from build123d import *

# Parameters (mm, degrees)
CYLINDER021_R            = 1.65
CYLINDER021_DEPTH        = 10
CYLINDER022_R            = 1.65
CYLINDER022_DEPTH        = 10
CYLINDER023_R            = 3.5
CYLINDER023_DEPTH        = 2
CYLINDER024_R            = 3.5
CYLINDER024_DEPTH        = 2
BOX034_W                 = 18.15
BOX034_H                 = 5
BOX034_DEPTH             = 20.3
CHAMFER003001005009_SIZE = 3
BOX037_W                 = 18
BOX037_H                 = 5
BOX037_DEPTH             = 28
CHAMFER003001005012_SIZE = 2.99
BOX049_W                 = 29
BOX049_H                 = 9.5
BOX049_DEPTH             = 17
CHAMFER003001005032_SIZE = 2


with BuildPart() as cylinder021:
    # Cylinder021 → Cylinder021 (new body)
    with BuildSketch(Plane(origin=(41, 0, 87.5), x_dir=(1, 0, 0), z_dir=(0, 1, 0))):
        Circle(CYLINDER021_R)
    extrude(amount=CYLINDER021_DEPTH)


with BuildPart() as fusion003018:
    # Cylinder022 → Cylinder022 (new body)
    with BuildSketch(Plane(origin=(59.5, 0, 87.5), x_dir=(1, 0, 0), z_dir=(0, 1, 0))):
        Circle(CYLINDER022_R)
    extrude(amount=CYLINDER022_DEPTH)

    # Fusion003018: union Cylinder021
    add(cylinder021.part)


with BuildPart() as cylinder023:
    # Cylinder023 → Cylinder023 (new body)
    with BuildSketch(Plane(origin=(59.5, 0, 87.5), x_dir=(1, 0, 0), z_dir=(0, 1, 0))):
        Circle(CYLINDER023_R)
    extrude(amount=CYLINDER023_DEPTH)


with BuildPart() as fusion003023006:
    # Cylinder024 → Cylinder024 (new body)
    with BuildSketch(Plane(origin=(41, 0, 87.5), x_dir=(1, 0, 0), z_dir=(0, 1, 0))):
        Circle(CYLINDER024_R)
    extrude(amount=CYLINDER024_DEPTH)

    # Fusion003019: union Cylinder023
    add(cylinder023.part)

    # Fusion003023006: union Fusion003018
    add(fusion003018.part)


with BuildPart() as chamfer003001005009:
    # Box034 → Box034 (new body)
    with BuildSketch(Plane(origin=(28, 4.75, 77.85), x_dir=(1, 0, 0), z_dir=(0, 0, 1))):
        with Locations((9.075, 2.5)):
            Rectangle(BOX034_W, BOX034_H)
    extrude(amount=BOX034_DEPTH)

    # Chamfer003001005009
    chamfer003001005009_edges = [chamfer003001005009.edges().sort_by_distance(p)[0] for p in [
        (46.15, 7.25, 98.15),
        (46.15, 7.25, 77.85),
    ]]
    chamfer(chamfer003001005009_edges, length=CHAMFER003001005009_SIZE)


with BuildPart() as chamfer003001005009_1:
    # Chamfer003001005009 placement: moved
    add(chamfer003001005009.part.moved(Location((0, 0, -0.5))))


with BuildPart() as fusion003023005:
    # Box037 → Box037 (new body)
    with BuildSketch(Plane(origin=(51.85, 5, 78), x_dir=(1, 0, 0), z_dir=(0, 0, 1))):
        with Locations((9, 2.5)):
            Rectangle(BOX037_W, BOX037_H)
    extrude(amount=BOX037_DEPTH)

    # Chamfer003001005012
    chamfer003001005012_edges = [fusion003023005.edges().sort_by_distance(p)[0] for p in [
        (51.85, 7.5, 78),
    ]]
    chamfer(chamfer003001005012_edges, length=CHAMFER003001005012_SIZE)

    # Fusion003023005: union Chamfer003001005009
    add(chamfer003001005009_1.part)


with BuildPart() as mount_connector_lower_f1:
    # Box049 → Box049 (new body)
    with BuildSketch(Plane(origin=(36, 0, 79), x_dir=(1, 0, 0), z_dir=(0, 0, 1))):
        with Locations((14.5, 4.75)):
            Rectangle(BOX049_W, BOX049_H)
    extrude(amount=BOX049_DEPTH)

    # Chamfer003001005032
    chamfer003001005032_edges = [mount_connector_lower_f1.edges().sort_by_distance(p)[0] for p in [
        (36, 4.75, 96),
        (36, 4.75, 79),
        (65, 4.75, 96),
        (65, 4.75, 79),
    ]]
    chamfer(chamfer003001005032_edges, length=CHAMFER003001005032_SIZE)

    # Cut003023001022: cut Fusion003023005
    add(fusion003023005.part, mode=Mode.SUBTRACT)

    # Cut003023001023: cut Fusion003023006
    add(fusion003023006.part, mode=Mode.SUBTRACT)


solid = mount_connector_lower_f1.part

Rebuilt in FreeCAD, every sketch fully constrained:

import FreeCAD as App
import Part
import Sketcher
from FreeCAD import Vector
Q = App.Units.Quantity


def edges_at(feature, points):
    """Names of the edges that pass closest to the given points."""
    edges = feature.Shape.Edges
    near = lambda p: min(range(len(edges)), key=lambda i: edges[i].distToShape(Part.Vertex(*p))[0])
    return sorted({f"Edge{near(p) + 1}" for p in points})


def add_polygon(sketch, points):
    """Adds a closed chain of lines whose ends are joined by coincident constraints."""
    first, n = sketch.GeometryCount, len(points)
    for a, b in zip(points, points[1:] + points[:1]):
        sketch.addGeometry(Part.LineSegment(App.Vector(*a, 0), App.Vector(*b, 0)), False)
    for i in range(n):
        sketch.addConstraint(Sketcher.Constraint("Coincident", first + i, 2, first + (i + 1) % n, 1))

doc = App.newDocument("Part")
params = doc.addObject("Spreadsheet::Sheet", "Params")
for row, (alias, value) in enumerate([
    ("sketch1_diameter", "3.3 mm"),
    ("pad1_length", "10 mm"),
    ("sketch2_diameter", "3.3 mm"),
    ("pad2_length", "10 mm"),
    ("sketch3_diameter", "7 mm"),
    ("pad3_length", "2 mm"),
    ("sketch4_diameter", "7 mm"),
    ("pad4_length", "2 mm"),
    ("sketch5_height", "5 mm"),
    ("sketch5_width", "18.15 mm"),
    ("pad5_length", "20.3 mm"),
    ("chamfer_size", "3 mm"),
    ("sketch6_width", "18 mm"),
    ("sketch6_height", "5 mm"),
    ("pad6_length", "28 mm"),
    ("chamfer2_size", "2.99 mm"),
    ("sketch7_width", "29 mm"),
    ("sketch7_height", "9.5 mm"),
    ("pad7_length", "17 mm"),
    ("chamfer3_size", "2 mm"),
], start=1):
    params.set(f"A{row}", alias)
    params.set(f"B{row}", "=" + value)
    params.setAlias(f"B{row}", alias)

body = doc.addObject("PartDesign::Body", "Body")

# Sketch on XZ plane
sketch1 = body.newObject("Sketcher::SketchObject", "Sketch")
sketch1.AttachmentSupport = (doc.getObject("XZ_Plane"), [""])
sketch1.MapMode = "FlatFace"
sketch1.addGeometry(Part.Circle(Vector(41, 87.5, 0), Vector(0, 0, 1), 1.65), False)
sketch1.addConstraint(Sketcher.Constraint("Diameter", 0, Q("3.3 mm")))
sketch1.addConstraint(Sketcher.Constraint("DistanceX", -1, 1, 0, 3, Q("41 mm")))
sketch1.addConstraint(Sketcher.Constraint("DistanceY", -1, 1, 0, 3, Q("87.5 mm")))
sketch1.setExpression("Constraints[0]", "Params.sketch1_diameter")
pad1 = body.newObject("PartDesign::Pad", "Pad")
pad1.Profile = sketch1
pad1.setExpression("Length", "Params.pad1_length")
pad1.Reversed = True
body2 = doc.addObject("PartDesign::Body", "Body001")
body2.AllowCompound = True

# Sketch on XZ plane
sketch2 = body2.newObject("Sketcher::SketchObject", "Sketch001")
sketch2.AttachmentSupport = (doc.getObject("XZ_Plane001"), [""])
sketch2.MapMode = "FlatFace"
sketch2.addGeometry(Part.Circle(Vector(59.5, 87.5, 0), Vector(0, 0, 1), 1.65), False)
sketch2.addConstraint(Sketcher.Constraint("Diameter", 0, Q("3.3 mm")))
sketch2.addConstraint(Sketcher.Constraint("DistanceX", -1, 1, 0, 3, Q("59.5 mm")))
sketch2.addConstraint(Sketcher.Constraint("DistanceY", -1, 1, 0, 3, Q("87.5 mm")))
sketch2.setExpression("Constraints[0]", "Params.sketch2_diameter")
pad2 = body2.newObject("PartDesign::Pad", "Pad001")
pad2.Profile = sketch2
pad2.setExpression("Length", "Params.pad2_length")
pad2.Reversed = True
doc.recompute()

boolean = body2.newObject("PartDesign::Boolean", "Boolean")
boolean.Type = "Fuse"
boolean.addObjects([body])
body3 = doc.addObject("PartDesign::Body", "Body002")

# Sketch on XZ plane
sketch3 = body3.newObject("Sketcher::SketchObject", "Sketch002")
sketch3.AttachmentSupport = (doc.getObject("XZ_Plane002"), [""])
sketch3.MapMode = "FlatFace"
sketch3.addGeometry(Part.Circle(Vector(59.5, 87.5, 0), Vector(0, 0, 1), 3.5), False)
sketch3.addConstraint(Sketcher.Constraint("Diameter", 0, Q("7 mm")))
sketch3.addConstraint(Sketcher.Constraint("DistanceX", -1, 1, 0, 3, Q("59.5 mm")))
sketch3.addConstraint(Sketcher.Constraint("DistanceY", -1, 1, 0, 3, Q("87.5 mm")))
sketch3.setExpression("Constraints[0]", "Params.sketch3_diameter")
pad3 = body3.newObject("PartDesign::Pad", "Pad002")
pad3.Profile = sketch3
pad3.setExpression("Length", "Params.pad3_length")
pad3.Reversed = True
body4 = doc.addObject("PartDesign::Body", "Body003")
body4.AllowCompound = True

# Sketch on XZ plane
sketch4 = body4.newObject("Sketcher::SketchObject", "Sketch003")
sketch4.AttachmentSupport = (doc.getObject("XZ_Plane003"), [""])
sketch4.MapMode = "FlatFace"
sketch4.addGeometry(Part.Circle(Vector(41, 87.5, 0), Vector(0, 0, 1), 3.5), False)
sketch4.addConstraint(Sketcher.Constraint("Diameter", 0, Q("7 mm")))
sketch4.addConstraint(Sketcher.Constraint("DistanceX", -1, 1, 0, 3, Q("41 mm")))
sketch4.addConstraint(Sketcher.Constraint("DistanceY", -1, 1, 0, 3, Q("87.5 mm")))
sketch4.setExpression("Constraints[0]", "Params.sketch4_diameter")
pad4 = body4.newObject("PartDesign::Pad", "Pad003")
pad4.Profile = sketch4
pad4.setExpression("Length", "Params.pad4_length")
pad4.Reversed = True
doc.recompute()

boolean2 = body4.newObject("PartDesign::Boolean", "Boolean001")
boolean2.Type = "Fuse"
boolean2.addObjects([body3])
doc.recompute()

boolean3 = body4.newObject("PartDesign::Boolean", "Boolean002")
boolean3.Type = "Fuse"
boolean3.addObjects([body2])
body5 = doc.addObject("PartDesign::Body", "Body004")

# Sketch on XY plane
sketch5 = body5.newObject("Sketcher::SketchObject", "Sketch004")
sketch5.AttachmentSupport = (doc.getObject("XY_Plane004"), [""])
sketch5.MapMode = "FlatFace"
sketch5.AttachmentOffset = App.Placement(Vector(0, 0, 77.85), App.Rotation())
add_polygon(sketch5, [(28, 9.75), (28, 4.75), (46.15, 4.75), (46.15, 9.75)])  # lines 0-3
sketch5.addConstraint(Sketcher.Constraint("Vertical", 0))
sketch5.addConstraint(Sketcher.Constraint("Horizontal", 1))
sketch5.addConstraint(Sketcher.Constraint("Vertical", 2))
sketch5.addConstraint(Sketcher.Constraint("Horizontal", 3))
sketch5.addConstraint(Sketcher.Constraint("DistanceY", 0, 2, 0, 1, Q("5 mm")))
sketch5.addConstraint(Sketcher.Constraint("DistanceX", -1, 1, 0, 2, Q("28 mm")))
sketch5.addConstraint(Sketcher.Constraint("DistanceX", 1, 1, 1, 2, Q("18.15 mm")))
sketch5.addConstraint(Sketcher.Constraint("DistanceY", -1, 1, 0, 2, Q("4.75 mm")))
sketch5.setExpression("Constraints[8]", "Params.sketch5_height")
sketch5.setExpression("Constraints[10]", "Params.sketch5_width")
pad5 = body5.newObject("PartDesign::Pad", "Pad004")
pad5.Profile = sketch5
pad5.setExpression("Length", "Params.pad5_length")
doc.recompute()

chamfer = body5.newObject("PartDesign::Chamfer", "Chamfer")
chamfer.Base = (pad5, edges_at(pad5, [(46.15, 7.25, 98.15), (46.15, 7.25, 77.85)]))
chamfer.setExpression("Size", "Params.chamfer_size")
body6 = doc.addObject("PartDesign::Body", "Body005")
doc.recompute()

body5.Placement = App.Placement(Vector(0, 0, -0.5), App.Rotation(Vector(0, 0, 1), 0))
boolean4 = body6.newObject("PartDesign::Boolean", "Boolean003")
boolean4.Type = "Fuse"
boolean4.addObjects([body5])
body7 = doc.addObject("PartDesign::Body", "Body006")
body7.AllowCompound = True

# Sketch on XY plane
sketch6 = body7.newObject("Sketcher::SketchObject", "Sketch005")
sketch6.AttachmentSupport = (doc.getObject("XY_Plane006"), [""])
sketch6.MapMode = "FlatFace"
sketch6.AttachmentOffset = App.Placement(Vector(0, 0, 78), App.Rotation())
add_polygon(sketch6, [(51.85, 10), (51.85, 5), (69.85, 5), (69.85, 10)])  # lines 0-3
sketch6.addConstraint(Sketcher.Constraint("Vertical", 0))
sketch6.addConstraint(Sketcher.Constraint("Horizontal", 1))
sketch6.addConstraint(Sketcher.Constraint("Vertical", 2))
sketch6.addConstraint(Sketcher.Constraint("Horizontal", 3))
sketch6.addConstraint(Sketcher.Constraint("DistanceX", 1, 1, 1, 2, Q("18 mm")))
sketch6.addConstraint(Sketcher.Constraint("DistanceY", 0, 2, 0, 1, Q("5 mm")))
sketch6.addConstraint(Sketcher.Constraint("DistanceY", -1, 1, 0, 2, Q("5 mm")))
sketch6.addConstraint(Sketcher.Constraint("DistanceX", -1, 1, 0, 2, Q("51.85 mm")))
sketch6.setExpression("Constraints[8]", "Params.sketch6_width")
sketch6.setExpression("Constraints[9]", "Params.sketch6_height")
pad6 = body7.newObject("PartDesign::Pad", "Pad005")
pad6.Profile = sketch6
pad6.setExpression("Length", "Params.pad6_length")
doc.recompute()

chamfer2 = body7.newObject("PartDesign::Chamfer", "Chamfer001")
chamfer2.Base = (pad6, edges_at(pad6, [(51.85, 7.5, 78)]))
chamfer2.setExpression("Size", "Params.chamfer2_size")
doc.recompute()

boolean5 = body7.newObject("PartDesign::Boolean", "Boolean004")
boolean5.Type = "Fuse"
boolean5.addObjects([body6])
body8 = doc.addObject("PartDesign::Body", "Body007")

# Sketch on XY plane
sketch7 = body8.newObject("Sketcher::SketchObject", "Sketch006")
sketch7.AttachmentSupport = (doc.getObject("XY_Plane007"), [""])
sketch7.MapMode = "FlatFace"
sketch7.AttachmentOffset = App.Placement(Vector(0, 0, 79), App.Rotation())
add_polygon(sketch7, [(36, 9.5), (36, 0), (65, 0), (65, 9.5)])  # lines 0-3
sketch7.addConstraint(Sketcher.Constraint("Vertical", 0))
sketch7.addConstraint(Sketcher.Constraint("Horizontal", 1))
sketch7.addConstraint(Sketcher.Constraint("Vertical", 2))
sketch7.addConstraint(Sketcher.Constraint("Horizontal", 3))
sketch7.addConstraint(Sketcher.Constraint("PointOnObject", 0, 2, -1))
sketch7.addConstraint(Sketcher.Constraint("DistanceX", 1, 1, 1, 2, Q("29 mm")))
sketch7.addConstraint(Sketcher.Constraint("DistanceY", 0, 2, 0, 1, Q("9.5 mm")))
sketch7.addConstraint(Sketcher.Constraint("DistanceX", -1, 1, 0, 2, Q("36 mm")))
sketch7.setExpression("Constraints[9]", "Params.sketch7_width")
sketch7.setExpression("Constraints[10]", "Params.sketch7_height")
pad7 = body8.newObject("PartDesign::Pad", "Pad006")
pad7.Profile = sketch7
pad7.setExpression("Length", "Params.pad7_length")
doc.recompute()

chamfer3 = body8.newObject("PartDesign::Chamfer", "Chamfer002")
chamfer3.Base = (pad7, edges_at(pad7, [
    (36, 4.75, 96),
    (36, 4.75, 79),
    (65, 4.75, 96),
    (65, 4.75, 79),
]))
chamfer3.setExpression("Size", "Params.chamfer3_size")
doc.recompute()

boolean6 = body8.newObject("PartDesign::Boolean", "Boolean005")
boolean6.Type = "Cut"
boolean6.addObjects([body7])
doc.recompute()

boolean7 = body8.newObject("PartDesign::Boolean", "Boolean006")
boolean7.Type = "Cut"
boolean7.addObjects([body4])

doc.recompute()
